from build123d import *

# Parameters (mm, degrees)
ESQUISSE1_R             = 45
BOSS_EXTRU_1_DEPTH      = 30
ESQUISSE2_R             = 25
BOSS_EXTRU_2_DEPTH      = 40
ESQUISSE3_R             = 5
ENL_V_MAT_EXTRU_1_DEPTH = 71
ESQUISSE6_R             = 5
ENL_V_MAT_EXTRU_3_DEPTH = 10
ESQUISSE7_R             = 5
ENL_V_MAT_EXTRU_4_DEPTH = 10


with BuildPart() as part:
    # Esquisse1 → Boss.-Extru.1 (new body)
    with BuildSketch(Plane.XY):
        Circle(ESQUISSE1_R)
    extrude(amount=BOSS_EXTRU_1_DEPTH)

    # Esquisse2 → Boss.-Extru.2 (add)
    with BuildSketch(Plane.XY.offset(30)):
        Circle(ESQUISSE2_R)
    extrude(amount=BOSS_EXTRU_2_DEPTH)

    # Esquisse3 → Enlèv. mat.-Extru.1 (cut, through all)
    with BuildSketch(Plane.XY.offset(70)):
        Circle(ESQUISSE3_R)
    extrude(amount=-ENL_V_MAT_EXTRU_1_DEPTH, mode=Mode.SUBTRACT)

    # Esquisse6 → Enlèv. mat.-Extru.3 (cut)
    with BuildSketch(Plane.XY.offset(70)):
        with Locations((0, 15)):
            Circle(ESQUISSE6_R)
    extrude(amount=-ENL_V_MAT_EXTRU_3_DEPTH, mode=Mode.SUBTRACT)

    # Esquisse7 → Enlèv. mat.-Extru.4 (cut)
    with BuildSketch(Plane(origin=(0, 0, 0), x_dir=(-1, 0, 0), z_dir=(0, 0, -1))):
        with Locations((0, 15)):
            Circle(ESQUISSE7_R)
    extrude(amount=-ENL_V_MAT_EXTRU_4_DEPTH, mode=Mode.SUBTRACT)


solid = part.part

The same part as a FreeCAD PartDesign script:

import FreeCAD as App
import Part
import Sketcher
from FreeCAD import Vector

doc = App.newDocument("Part")
body = doc.addObject("PartDesign::Body", "Body")

sketch1 = body.newObject("Sketcher::SketchObject", "Sketch")
sketch1.AttachmentSupport = (doc.getObject("XY_Plane"), [""])
sketch1.MapMode = "FlatFace"
sketch1.addGeometry(Part.Circle(Vector(0, 0, 0), Vector(0, 0, 1), 45), False)
sketch1.addConstraint([
    Sketcher.Constraint("Coincident", 0, 3, -1, 1),
    Sketcher.Constraint("Diameter", 0, 90.0),
])
pad1 = body.newObject("PartDesign::Pad", "Pad")
pad1.Profile = sketch1
pad1.Length = 30

sketch2 = body.newObject("Sketcher::SketchObject", "Sketch001")
sketch2.AttachmentSupport = (doc.getObject("XY_Plane"), [""])
sketch2.MapMode = "FlatFace"
sketch2.AttachmentOffset = App.Placement(Vector(0, 0, 30), App.Rotation())
sketch2.addGeometry(Part.Circle(Vector(0, 0, 0), Vector(0, 0, 1), 25), False)
sketch2.addConstraint([
    Sketcher.Constraint("Coincident", 0, 3, -1, 1),
    Sketcher.Constraint("Diameter", 0, 50.0),
])
pad2 = body.newObject("PartDesign::Pad", "Pad001")
pad2.Profile = sketch2
pad2.Length = 40

sketch3 = body.newObject("Sketcher::SketchObject", "Sketch002")
sketch3.AttachmentSupport = (doc.getObject("XY_Plane"), [""])
sketch3.MapMode = "FlatFace"
sketch3.AttachmentOffset = App.Placement(Vector(0, 0, 70), App.Rotation())
sketch3.addGeometry(Part.Circle(Vector(0, 0, 0), Vector(0, 0, 1), 5), False)
sketch3.addConstraint([
    Sketcher.Constraint("Coincident", 0, 3, -1, 1),
    Sketcher.Constraint("Diameter", 0, 10.0),
])
pocket1 = body.newObject("PartDesign::Pocket", "Pocket")
pocket1.Profile = sketch3
pocket1.Type = "ThroughAll"

sketch4 = body.newObject("Sketcher::SketchObject", "Sketch003")
sketch4.AttachmentSupport = (doc.getObject("XY_Plane"), [""])
sketch4.MapMode = "FlatFace"
sketch4.AttachmentOffset = App.Placement(Vector(0, 0, 70), App.Rotation())
sketch4.addGeometry(Part.Circle(Vector(0, 15, 0), Vector(0, 0, 1), 5), False)
sketch4.addConstraint([
    Sketcher.Constraint("PointOnObject", 0, 3, -2),
    Sketcher.Constraint("Diameter", 0, 10.0),
    Sketcher.Constraint("DistanceY", -1, 1, 0, 3, 15.0),
])
pocket2 = body.newObject("PartDesign::Pocket", "Pocket001")
pocket2.Profile = sketch4
pocket2.Length = 10

sketch5 = body.newObject("Sketcher::SketchObject", "Sketch004")
sketch5.AttachmentSupport = (doc.getObject("XY_Plane"), [""])
sketch5.MapMode = "FlatFace"
sketch5.addGeometry(Part.Circle(Vector(0, 15, 0), Vector(0, 0, 1), 5), False)
sketch5.addConstraint([
    Sketcher.Constraint("PointOnObject", 0, 3, -2),
    Sketcher.Constraint("Diameter", 0, 10.0),
    Sketcher.Constraint("DistanceY", -1, 1, 0, 3, 15.0),
])
pocket3 = body.newObject("PartDesign::Pocket", "Pocket002")
pocket3.Profile = sketch5
pocket3.Length = 10
pocket3.Reversed = True

doc.recompute()
